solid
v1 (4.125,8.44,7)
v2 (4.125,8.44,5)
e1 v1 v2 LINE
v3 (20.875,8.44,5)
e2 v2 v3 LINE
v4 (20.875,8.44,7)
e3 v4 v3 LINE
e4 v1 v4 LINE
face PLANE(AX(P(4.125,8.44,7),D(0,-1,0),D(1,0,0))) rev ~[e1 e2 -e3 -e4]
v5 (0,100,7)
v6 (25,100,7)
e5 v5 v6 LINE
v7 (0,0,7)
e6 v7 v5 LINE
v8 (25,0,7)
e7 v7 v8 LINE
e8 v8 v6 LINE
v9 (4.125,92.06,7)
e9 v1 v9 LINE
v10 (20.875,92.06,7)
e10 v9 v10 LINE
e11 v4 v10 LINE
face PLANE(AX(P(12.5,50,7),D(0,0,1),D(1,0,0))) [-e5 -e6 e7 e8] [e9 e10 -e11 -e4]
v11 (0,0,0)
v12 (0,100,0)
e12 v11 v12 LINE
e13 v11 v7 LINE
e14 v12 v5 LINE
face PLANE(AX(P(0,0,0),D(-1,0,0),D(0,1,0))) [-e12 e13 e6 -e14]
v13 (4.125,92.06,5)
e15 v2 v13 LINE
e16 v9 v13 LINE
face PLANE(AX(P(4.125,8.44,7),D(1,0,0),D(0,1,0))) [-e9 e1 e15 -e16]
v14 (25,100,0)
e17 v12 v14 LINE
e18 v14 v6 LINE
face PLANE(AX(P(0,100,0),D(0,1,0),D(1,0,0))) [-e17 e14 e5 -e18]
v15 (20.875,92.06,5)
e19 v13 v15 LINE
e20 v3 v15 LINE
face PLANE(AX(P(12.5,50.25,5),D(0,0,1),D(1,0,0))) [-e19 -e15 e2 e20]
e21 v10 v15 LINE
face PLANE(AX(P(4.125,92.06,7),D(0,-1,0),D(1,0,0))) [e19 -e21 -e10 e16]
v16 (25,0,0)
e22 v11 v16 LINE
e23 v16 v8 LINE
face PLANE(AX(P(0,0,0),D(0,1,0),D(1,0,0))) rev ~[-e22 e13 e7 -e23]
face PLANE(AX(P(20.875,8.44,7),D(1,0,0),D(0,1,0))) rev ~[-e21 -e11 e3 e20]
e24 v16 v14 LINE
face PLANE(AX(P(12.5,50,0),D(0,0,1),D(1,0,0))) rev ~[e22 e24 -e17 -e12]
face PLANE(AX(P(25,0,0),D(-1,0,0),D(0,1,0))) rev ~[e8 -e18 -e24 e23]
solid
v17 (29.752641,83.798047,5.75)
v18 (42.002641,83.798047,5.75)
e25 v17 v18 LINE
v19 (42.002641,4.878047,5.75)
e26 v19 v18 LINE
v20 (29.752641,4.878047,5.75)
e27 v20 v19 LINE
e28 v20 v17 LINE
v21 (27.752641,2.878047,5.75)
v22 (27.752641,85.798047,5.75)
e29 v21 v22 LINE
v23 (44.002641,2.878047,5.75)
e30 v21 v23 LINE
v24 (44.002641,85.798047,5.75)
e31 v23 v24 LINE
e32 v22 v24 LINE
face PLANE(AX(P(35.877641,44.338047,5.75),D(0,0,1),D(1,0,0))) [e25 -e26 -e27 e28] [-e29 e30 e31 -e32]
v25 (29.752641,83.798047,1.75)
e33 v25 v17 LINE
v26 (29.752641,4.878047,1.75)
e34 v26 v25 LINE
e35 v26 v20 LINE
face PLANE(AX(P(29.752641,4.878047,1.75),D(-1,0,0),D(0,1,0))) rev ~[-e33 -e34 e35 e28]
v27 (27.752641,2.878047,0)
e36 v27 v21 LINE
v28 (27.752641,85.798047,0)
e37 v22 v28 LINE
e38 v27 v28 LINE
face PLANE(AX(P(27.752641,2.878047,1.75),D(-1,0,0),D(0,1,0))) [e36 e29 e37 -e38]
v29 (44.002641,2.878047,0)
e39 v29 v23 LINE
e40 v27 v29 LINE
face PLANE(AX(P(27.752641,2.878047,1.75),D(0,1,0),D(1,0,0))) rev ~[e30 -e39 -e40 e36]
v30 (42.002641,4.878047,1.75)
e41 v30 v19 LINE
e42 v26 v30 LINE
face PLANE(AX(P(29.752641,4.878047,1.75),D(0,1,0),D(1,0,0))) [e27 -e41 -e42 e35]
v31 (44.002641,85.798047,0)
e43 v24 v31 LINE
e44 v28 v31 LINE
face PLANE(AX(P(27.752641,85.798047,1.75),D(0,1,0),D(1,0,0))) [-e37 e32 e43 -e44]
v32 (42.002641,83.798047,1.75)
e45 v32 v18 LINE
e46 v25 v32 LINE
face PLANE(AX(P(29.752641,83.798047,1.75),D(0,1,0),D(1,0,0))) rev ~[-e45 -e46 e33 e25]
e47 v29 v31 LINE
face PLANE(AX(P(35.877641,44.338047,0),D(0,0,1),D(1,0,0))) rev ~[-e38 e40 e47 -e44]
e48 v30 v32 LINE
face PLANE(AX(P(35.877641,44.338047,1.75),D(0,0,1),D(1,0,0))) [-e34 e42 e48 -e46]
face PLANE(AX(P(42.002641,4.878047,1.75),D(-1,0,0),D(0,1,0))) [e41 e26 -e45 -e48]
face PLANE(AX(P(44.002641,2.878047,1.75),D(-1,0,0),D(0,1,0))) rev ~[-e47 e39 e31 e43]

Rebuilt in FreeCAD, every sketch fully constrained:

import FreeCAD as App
import Part
import Sketcher

V = App.Vector

doc = App.newDocument("Part")
body = doc.addObject("PartDesign::Body", "Body")

sketch1 = body.newObject("Sketcher::SketchObject", "Sketch")
sketch1.AttachmentSupport = (doc.getObject("XY_Plane"), [""])
sketch1.MapMode = "FlatFace"
sketch1.addGeometry(Part.LineSegment(V(0, 100, 0), V(0, 0, 0)), False)
sketch1.addGeometry(Part.LineSegment(V(0, 0, 0), V(25, 0, 0)), False)
sketch1.addGeometry(Part.LineSegment(V(25, 0, 0), V(25, 100, 0)), False)
sketch1.addGeometry(Part.LineSegment(V(25, 100, 0), V(0, 100, 0)), False)
sketch1.addConstraint(Sketcher.Constraint("Coincident", 0, 2, 1, 1))
sketch1.addConstraint(Sketcher.Constraint("Coincident", 1, 2, 2, 1))
sketch1.addConstraint(Sketcher.Constraint("Coincident", 2, 2, 3, 1))
sketch1.addConstraint(Sketcher.Constraint("Coincident", 3, 2, 0, 1))
sketch1.addConstraint(Sketcher.Constraint("Vertical", 0))
sketch1.addConstraint(Sketcher.Constraint("Horizontal", 1))
sketch1.addConstraint(Sketcher.Constraint("Vertical", 2))
sketch1.addConstraint(Sketcher.Constraint("Horizontal", 3))
sketch1.addConstraint(Sketcher.Constraint("Coincident", 0, 2, -1, 1))
sketch1.addConstraint(Sketcher.Constraint("DistanceX", 1, 1, 1, 2, 25.0))
sketch1.addConstraint(Sketcher.Constraint("DistanceY", 0, 2, 0, 1, 100.0))
pad1 = body.newObject("PartDesign::Pad", "Pad")
pad1.Profile = sketch1
pad1.Length = 7

sketch2 = body.newObject("Sketcher::SketchObject", "Sketch001")
sketch2.AttachmentSupport = (doc.getObject("XY_Plane"), [""])
sketch2.MapMode = "FlatFace"
sketch2.AttachmentOffset = App.Placement(V(0, 0, 7), App.Rotation())
sketch2.addGeometry(Part.LineSegment(V(4.125, 92.06, 0), V(4.125, 8.44, 0)), False)
sketch2.addGeometry(Part.LineSegment(V(4.125, 8.44, 0), V(20.875, 8.44, 0)), False)
sketch2.addGeometry(Part.LineSegment(V(20.875, 8.44, 0), V(20.875, 92.06, 0)), False)
sketch2.addGeometry(Part.LineSegment(V(20.875, 92.06, 0), V(4.125, 92.06, 0)), False)
sketch2.addConstraint(Sketcher.Constraint("Coincident", 0, 2, 1, 1))
sketch2.addConstraint(Sketcher.Constraint("Coincident", 1, 2, 2, 1))
sketch2.addConstraint(Sketcher.Constraint("Coincident", 2, 2, 3, 1))
sketch2.addConstraint(Sketcher.Constraint("Coincident", 3, 2, 0, 1))
sketch2.addConstraint(Sketcher.Constraint("Vertical", 0))
sketch2.addConstraint(Sketcher.Constraint("Horizontal", 1))
sketch2.addConstraint(Sketcher.Constraint("Vertical", 2))
sketch2.addConstraint(Sketcher.Constraint("Horizontal", 3))
sketch2.addConstraint(Sketcher.Constraint("DistanceX", 1, 1, 1, 2, 16.75))
sketch2.addConstraint(Sketcher.Constraint("DistanceY", 0, 2, 0, 1, 83.62))
sketch2.addConstraint(Sketcher.Constraint("DistanceY", -1, 1, 0, 2, 8.44))
sketch2.addConstraint(Sketcher.Constraint("DistanceX", -1, 1, 0, 2, 4.125))
pocket1 = body.newObject("PartDesign::Pocket", "Pocket")
pocket1.Profile = sketch2
pocket1.Length = 2
body2 = doc.addObject("PartDesign::Body", "Body001")

sketch3 = body2.newObject("Sketcher::SketchObject", "Sketch002")
sketch3.AttachmentSupport = (doc.getObject("XY_Plane001"), [""])
sketch3.MapMode = "FlatFace"
sketch3.addGeometry(Part.LineSegment(V(27.752641, 85.798047, 0), V(27.752641, 2.878047, 0)), False)
sketch3.addGeometry(Part.LineSegment(V(27.752641, 2.878047, 0), V(44.002641, 2.878047, 0)), False)
sketch3.addGeometry(Part.LineSegment(V(44.002641, 2.878047, 0), V(44.002641, 85.798047, 0)), False)
sketch3.addGeometry(Part.LineSegment(V(44.002641, 85.798047, 0), V(27.752641, 85.798047, 0)), False)
sketch3.addConstraint(Sketcher.Constraint("Coincident", 0, 2, 1, 1))
sketch3.addConstraint(Sketcher.Constraint("Coincident", 1, 2, 2, 1))
sketch3.addConstraint(Sketcher.Constraint("Coincident", 2, 2, 3, 1))
sketch3.addConstraint(Sketcher.Constraint("Coincident", 3, 2, 0, 1))
sketch3.addConstraint(Sketcher.Constraint("Vertical", 0))
sketch3.addConstraint(Sketcher.Constraint("Horizontal", 1))
sketch3.addConstraint(Sketcher.Constraint("Vertical", 2))
sketch3.addConstraint(Sketcher.Constraint("Horizontal", 3))
sketch3.addConstraint(Sketcher.Constraint("DistanceX", 1, 1, 1, 2, 16.25))
sketch3.addConstraint(Sketcher.Constraint("DistanceY", 0, 2, 0, 1, 82.92))
sketch3.addConstraint(Sketcher.Constraint("DistanceX", -1, 1, 0, 2, 27.752641))
sketch3.addConstraint(Sketcher.Constraint("DistanceY", -1, 1, 0, 2, 2.878047))
pad2 = body2.newObject("PartDesign::Pad", "Pad001")
pad2.Profile = sketch3
pad2.Length = 1.75

sketch4 = body2.newObject("Sketcher::SketchObject", "Sketch003")
sketch4.AttachmentSupport = (doc.getObject("XY_Plane001"), [""])
sketch4.MapMode = "FlatFace"
sketch4.AttachmentOffset = App.Placement(V(0, 0, 1.75), App.Rotation())
sketch4.addGeometry(Part.LineSegment(V(27.752641, 85.798047, 0), V(27.752641, 2.878047, 0)), False)
sketch4.addGeometry(Part.LineSegment(V(27.752641, 2.878047, 0), V(44.002641, 2.878047, 0)), False)
sketch4.addGeometry(Part.LineSegment(V(44.002641, 2.878047, 0), V(44.002641, 85.798047, 0)), False)
sketch4.addGeometry(Part.LineSegment(V(44.002641, 85.798047, 0), V(27.752641, 85.798047, 0)), False)
sketch4.addGeometry(Part.LineSegment(V(42.002641, 4.878047, 0), V(29.752641, 4.878047, 0)), False)
sketch4.addGeometry(Part.LineSegment(V(29.752641, 4.878047, 0), V(29.752641, 83.798047, 0)), False)
sketch4.addGeometry(Part.LineSegment(V(29.752641, 83.798047, 0), V(42.002641, 83.798047, 0)), False)
sketch4.addGeometry(Part.LineSegment(V(42.002641, 83.798047, 0), V(42.002641, 4.878047, 0)), False)
sketch4.addConstraint(Sketcher.Constraint("Coincident", 0, 2, 1, 1))
sketch4.addConstraint(Sketcher.Constraint("Coincident", 1, 2, 2, 1))
sketch4.addConstraint(Sketcher.Constraint("Coincident", 2, 2, 3, 1))
sketch4.addConstraint(Sketcher.Constraint("Coincident", 3, 2, 0, 1))
sketch4.addConstraint(Sketcher.Constraint("Coincident", 4, 2, 5, 1))
sketch4.addConstraint(Sketcher.Constraint("Coincident", 5, 2, 6, 1))
sketch4.addConstraint(Sketcher.Constraint("Coincident", 6, 2, 7, 1))
sketch4.addConstraint(Sketcher.Constraint("Coincident", 7, 2, 4, 1))
sketch4.addConstraint(Sketcher.Constraint("Vertical", 0))
sketch4.addConstraint(Sketcher.Constraint("Horizontal", 1))
sketch4.addConstraint(Sketcher.Constraint("Vertical", 2))
sketch4.addConstraint(Sketcher.Constraint("Horizontal", 3))
sketch4.addConstraint(Sketcher.Constraint("Horizontal", 4))
sketch4.addConstraint(Sketcher.Constraint("Vertical", 5))
sketch4.addConstraint(Sketcher.Constraint("Horizontal", 6))
sketch4.addConstraint(Sketcher.Constraint("Vertical", 7))
sketch4.addConstraint(Sketcher.Constraint("DistanceX", 0, 2, 4, 2, 2.0))
sketch4.addConstraint(Sketcher.Constraint("DistanceY", 0, 2, 4, 2, 2.0))
sketch4.addConstraint(Sketcher.Constraint("DistanceY", 5, 2, 3, 2, 2.0))
sketch4.addConstraint(Sketcher.Constraint("DistanceX", 6, 2, 2, 2, 2.0))
sketch4.addConstraint(Sketcher.Constraint("DistanceX", 1, 1, 1, 2, 16.25))
sketch4.addConstraint(Sketcher.Constraint("DistanceY", 0, 2, 0, 1, 82.92))
sketch4.addConstraint(Sketcher.Constraint("DistanceX", -1, 1, 0, 2, 27.752641))
sketch4.addConstraint(Sketcher.Constraint("DistanceY", -1, 1, 0, 2, 2.878047))
pad3 = body2.newObject("PartDesign::Pad", "Pad002")
pad3.Profile = sketch4
pad3.Length = 4

doc.recompute()
